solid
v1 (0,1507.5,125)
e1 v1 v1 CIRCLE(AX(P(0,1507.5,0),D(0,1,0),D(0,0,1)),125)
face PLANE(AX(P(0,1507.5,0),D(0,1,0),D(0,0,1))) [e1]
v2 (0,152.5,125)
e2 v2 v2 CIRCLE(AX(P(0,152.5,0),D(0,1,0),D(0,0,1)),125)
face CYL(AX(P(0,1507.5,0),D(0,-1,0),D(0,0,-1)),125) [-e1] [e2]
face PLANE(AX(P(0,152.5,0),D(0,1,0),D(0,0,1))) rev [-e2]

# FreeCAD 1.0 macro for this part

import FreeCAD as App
import Part
import Sketcher
from FreeCAD import Vector
Q = App.Units.Quantity

doc = App.newDocument("Part")
params = doc.addObject("Spreadsheet::Sheet", "Params")
for row, (alias, value) in enumerate([
    ("sketch1_diameter", "250 mm"),
    ("pad1_length", "1355 mm"),
], start=1):
    params.set(f"A{row}", alias)
    params.set(f"B{row}", "=" + value)
    params.setAlias(f"B{row}", alias)

body = doc.addObject("PartDesign::Body", "Body")

sketch1 = body.newObject("Sketcher::SketchObject", "Sketch")
sketch1.AttachmentSupport = (doc.getObject("XZ_Plane"), [""])
sketch1.MapMode = "FlatFace"
sketch1.AttachmentOffset = App.Placement(Vector(0, 0, -152.5), App.Rotation())
sketch1.addGeometry(Part.Circle(Vector(0, 0, 0), Vector(0, 0, 1), 125), False)
sketch1.addConstraint([
    Sketcher.Constraint("Coincident", 0, 3, -1, 1),
    Sketcher.Constraint("Diameter", 0, Q("250 mm")),
])
sketch1.setExpression("Constraints[1]", "Params.sketch1_diameter")
pad1 = body.newObject("PartDesign::Pad", "Pad")
pad1.Profile = sketch1
pad1.setExpression("Length", "Params.pad1_length")
pad1.Reversed = True

doc.recompute()
